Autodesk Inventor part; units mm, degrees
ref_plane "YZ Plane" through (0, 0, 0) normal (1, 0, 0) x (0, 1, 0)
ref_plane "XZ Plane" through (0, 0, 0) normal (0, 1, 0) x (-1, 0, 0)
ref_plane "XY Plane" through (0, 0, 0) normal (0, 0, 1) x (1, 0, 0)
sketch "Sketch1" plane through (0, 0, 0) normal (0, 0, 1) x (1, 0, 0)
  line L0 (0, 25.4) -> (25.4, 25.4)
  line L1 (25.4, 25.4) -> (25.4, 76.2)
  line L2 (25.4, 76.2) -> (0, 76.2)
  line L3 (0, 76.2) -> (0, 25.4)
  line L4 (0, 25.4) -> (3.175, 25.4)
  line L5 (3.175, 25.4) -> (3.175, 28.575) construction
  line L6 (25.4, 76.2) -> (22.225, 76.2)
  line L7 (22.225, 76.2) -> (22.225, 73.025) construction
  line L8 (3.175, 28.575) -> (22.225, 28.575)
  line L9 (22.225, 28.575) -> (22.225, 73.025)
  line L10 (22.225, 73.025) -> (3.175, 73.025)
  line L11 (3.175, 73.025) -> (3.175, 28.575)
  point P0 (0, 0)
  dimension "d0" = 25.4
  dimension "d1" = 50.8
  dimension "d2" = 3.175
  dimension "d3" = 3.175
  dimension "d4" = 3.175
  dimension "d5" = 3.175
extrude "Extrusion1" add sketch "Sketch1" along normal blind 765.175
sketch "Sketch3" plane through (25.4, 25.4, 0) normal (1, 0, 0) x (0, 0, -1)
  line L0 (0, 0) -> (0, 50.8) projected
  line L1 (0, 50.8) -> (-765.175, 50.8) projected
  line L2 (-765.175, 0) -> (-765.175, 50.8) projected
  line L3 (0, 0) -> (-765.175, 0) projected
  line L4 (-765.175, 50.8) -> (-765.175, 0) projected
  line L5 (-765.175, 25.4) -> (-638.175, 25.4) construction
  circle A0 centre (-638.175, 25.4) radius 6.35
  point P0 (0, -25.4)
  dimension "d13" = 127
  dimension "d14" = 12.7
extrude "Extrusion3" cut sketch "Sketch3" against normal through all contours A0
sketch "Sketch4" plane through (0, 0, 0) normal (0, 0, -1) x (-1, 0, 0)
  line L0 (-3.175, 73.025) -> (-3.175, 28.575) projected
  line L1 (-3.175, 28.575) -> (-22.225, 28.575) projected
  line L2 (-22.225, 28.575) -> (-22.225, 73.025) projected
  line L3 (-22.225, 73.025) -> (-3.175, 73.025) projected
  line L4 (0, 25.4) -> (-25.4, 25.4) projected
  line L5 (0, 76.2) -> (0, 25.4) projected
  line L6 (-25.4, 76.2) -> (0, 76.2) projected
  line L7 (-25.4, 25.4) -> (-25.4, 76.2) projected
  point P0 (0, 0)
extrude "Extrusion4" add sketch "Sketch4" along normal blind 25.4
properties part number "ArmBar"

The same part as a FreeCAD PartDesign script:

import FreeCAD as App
import Part
import Sketcher
Q = App.Units.Quantity

doc = App.newDocument("Part")
params = doc.addObject("Spreadsheet::Sheet", "Params")
for row, (alias, value) in enumerate([
    ("sketch1_width", "1 in"),
    ("sketch1_height", "2 in"),
    ("pad1_length", "30.125 in"),
    ("sketch2_diameter", "0.5 in"),
    ("sketch3_width", "1 in"),
    ("sketch3_height", "2 in"),
    ("sketch3_width2", "0.75 in"),
    ("sketch3_height2", "1.75 in"),
    ("pad2_length", "1 in"),
], start=1):
    params.set(f"A{row}", alias)
    params.set(f"B{row}", "=" + value)
    params.setAlias(f"B{row}", alias)

body = doc.addObject("PartDesign::Body", "Body")

sketch1 = body.newObject("Sketcher::SketchObject", "Sketch")
sketch1.AttachmentSupport = (doc.getObject("XY_Plane"), [""])
sketch1.MapMode = "FlatFace"
sketch1.addGeometry([
    Part.LineSegment(App.Vector(0, 76, 0), App.Vector(0, 25, 0)),
    Part.LineSegment(App.Vector(0, 25, 0), App.Vector(25, 25, 0)),
    Part.LineSegment(App.Vector(25, 25, 0), App.Vector(25, 76, 0)),
    Part.LineSegment(App.Vector(25, 76, 0), App.Vector(0, 76, 0)),
    Part.LineSegment(App.Vector(22, 29, 0), App.Vector(3, 29, 0)),
    Part.LineSegment(App.Vector(3, 29, 0), App.Vector(3, 73, 0)),
    Part.LineSegment(App.Vector(3, 73, 0), App.Vector(22, 73, 0)),
    Part.LineSegment(App.Vector(22, 73, 0), App.Vector(22, 29, 0)),
], False)
sketch1.addConstraint([
    Sketcher.Constraint("Coincident", 0, 2, 1, 1),
    Sketcher.Constraint("Coincident", 1, 2, 2, 1),
    Sketcher.Constraint("Coincident", 2, 2, 3, 1),
    Sketcher.Constraint("Coincident", 3, 2, 0, 1),
    Sketcher.Constraint("Coincident", 4, 2, 5, 1),
    Sketcher.Constraint("Coincident", 5, 2, 6, 1),
    Sketcher.Constraint("Coincident", 6, 2, 7, 1),
    Sketcher.Constraint("Coincident", 7, 2, 4, 1),
    Sketcher.Constraint("Vertical", 0),
    Sketcher.Constraint("Horizontal", 1),
    Sketcher.Constraint("Vertical", 2),
    Sketcher.Constraint("Horizontal", 3),
    Sketcher.Constraint("Horizontal", 4),
    Sketcher.Constraint("Vertical", 5),
    Sketcher.Constraint("Horizontal", 6),
    Sketcher.Constraint("Vertical", 7),
    Sketcher.Constraint("PointOnObject", 0, 2, -2),
    Sketcher.Constraint("DistanceX", 1, 1, 1, 2, Q("1 in")),
    Sketcher.Constraint("DistanceY", 0, 2, 0, 1, Q("2 in")),
    Sketcher.Constraint("DistanceY", -1, 1, 0, 2, Q("1 in")),
    Sketcher.Constraint("DistanceX", -1, 1, 4, 2, Q("0.125 in")),
    Sketcher.Constraint("DistanceY", 0, 2, 4, 2, Q("0.125 in")),
    Sketcher.Constraint("DistanceY", 5, 2, 3, 2, Q("0.125 in")),
    Sketcher.Constraint("DistanceX", 6, 2, 2, 2, Q("0.125 in")),
])
sketch1.setExpression("Constraints[17]", "Params.sketch1_width")
sketch1.setExpression("Constraints[18]", "Params.sketch1_height")
pad1 = body.newObject("PartDesign::Pad", "Pad")
pad1.Profile = sketch1
pad1.setExpression("Length", "Params.pad1_length")

sketch2 = body.newObject("Sketcher::SketchObject", "Sketch001")
sketch2.AttachmentSupport = (doc.getObject("YZ_Plane"), [""])
sketch2.MapMode = "FlatFace"
sketch2.AttachmentOffset = App.Placement(App.Vector(0, 0, 1 * 25.4), App.Rotation())
sketch2.addGeometry(Part.Circle(App.Vector(51, 638, 0), App.Vector(0, 0, 1), 6), False)
sketch2.addConstraint([
    Sketcher.Constraint("Diameter", 0, Q("0.5 in")),
    Sketcher.Constraint("DistanceX", -1, 1, 0, 3, Q("2 in")),
    Sketcher.Constraint("DistanceY", -1, 1, 0, 3, Q("25.125 in")),
])
sketch2.setExpression("Constraints[0]", "Params.sketch2_diameter")
pocket1 = body.newObject("PartDesign::Pocket", "Pocket")
pocket1.Profile = sketch2
pocket1.Type = "ThroughAll"

sketch3 = body.newObject("Sketcher::SketchObject", "Sketch002")
sketch3.AttachmentSupport = (doc.getObject("XY_Plane"), [""])
sketch3.MapMode = "FlatFace"
sketch3.addGeometry([
    Part.LineSegment(App.Vector(25, 25, 0), App.Vector(0, 25, 0)),
    Part.LineSegment(App.Vector(0, 25, 0), App.Vector(0, 76, 0)),
    Part.LineSegment(App.Vector(0, 76, 0), App.Vector(25, 76, 0)),
    Part.LineSegment(App.Vector(25, 76, 0), App.Vector(25, 25, 0)),
    Part.LineSegment(App.Vector(22, 73, 0), App.Vector(3, 73, 0)),
    Part.LineSegment(App.Vector(3, 73, 0), App.Vector(3, 29, 0)),
    Part.LineSegment(App.Vector(3, 29, 0), App.Vector(22, 29, 0)),
    Part.LineSegment(App.Vector(22, 29, 0), App.Vector(22, 73, 0)),
], False)
sketch3.addConstraint([
    Sketcher.Constraint("Coincident", 0, 2, 1, 1),
    Sketcher.Constraint("Coincident", 1, 2, 2, 1),
    Sketcher.Constraint("Coincident", 2, 2, 3, 1),
    Sketcher.Constraint("Coincident", 3, 2, 0, 1),
    Sketcher.Constraint("Coincident", 4, 2, 5, 1),
    Sketcher.Constraint("Coincident", 5, 2, 6, 1),
    Sketcher.Constraint("Coincident", 6, 2, 7, 1),
    Sketcher.Constraint("Coincident", 7, 2, 4, 1),
    Sketcher.Constraint("Horizontal", 0),
    Sketcher.Constraint("Vertical", 1),
    Sketcher.Constraint("Horizontal", 2),
    Sketcher.Constraint("Vertical", 3),
    Sketcher.Constraint("Horizontal", 4),
    Sketcher.Constraint("Vertical", 5),
    Sketcher.Constraint("Horizontal", 6),
    Sketcher.Constraint("Vertical", 7),
    Sketcher.Constraint("PointOnObject", 0, 2, -2),
    Sketcher.Constraint("DistanceX", 0, 2, 0, 1, Q("1 in")),
    Sketcher.Constraint("DistanceY", 1, 1, 1, 2, Q("2 in")),
    Sketcher.Constraint("DistanceY", -1, 1, 0, 2, Q("1 in")),
    Sketcher.Constraint("DistanceX", 4, 2, 4, 1, Q("0.75 in")),
    Sketcher.Constraint("DistanceY", 5, 2, 5, 1, Q("1.75 in")),
    Sketcher.Constraint("DistanceX", -1, 1, 4, 2, Q("0.125 in")),
    Sketcher.Constraint("DistanceY", -1, 1, 4, 2, Q("2.875 in")),
])
sketch3.setExpression("Constraints[17]", "Params.sketch3_width")
sketch3.setExpression("Constraints[18]", "Params.sketch3_height")
sketch3.setExpression("Constraints[20]", "Params.sketch3_width2")
sketch3.setExpression("Constraints[21]", "Params.sketch3_height2")
pad2 = body.newObject("PartDesign::Pad", "Pad001")
pad2.Profile = sketch3
pad2.setExpression("Length", "Params.pad2_length")
pad2.Reversed = True

doc.recompute()
